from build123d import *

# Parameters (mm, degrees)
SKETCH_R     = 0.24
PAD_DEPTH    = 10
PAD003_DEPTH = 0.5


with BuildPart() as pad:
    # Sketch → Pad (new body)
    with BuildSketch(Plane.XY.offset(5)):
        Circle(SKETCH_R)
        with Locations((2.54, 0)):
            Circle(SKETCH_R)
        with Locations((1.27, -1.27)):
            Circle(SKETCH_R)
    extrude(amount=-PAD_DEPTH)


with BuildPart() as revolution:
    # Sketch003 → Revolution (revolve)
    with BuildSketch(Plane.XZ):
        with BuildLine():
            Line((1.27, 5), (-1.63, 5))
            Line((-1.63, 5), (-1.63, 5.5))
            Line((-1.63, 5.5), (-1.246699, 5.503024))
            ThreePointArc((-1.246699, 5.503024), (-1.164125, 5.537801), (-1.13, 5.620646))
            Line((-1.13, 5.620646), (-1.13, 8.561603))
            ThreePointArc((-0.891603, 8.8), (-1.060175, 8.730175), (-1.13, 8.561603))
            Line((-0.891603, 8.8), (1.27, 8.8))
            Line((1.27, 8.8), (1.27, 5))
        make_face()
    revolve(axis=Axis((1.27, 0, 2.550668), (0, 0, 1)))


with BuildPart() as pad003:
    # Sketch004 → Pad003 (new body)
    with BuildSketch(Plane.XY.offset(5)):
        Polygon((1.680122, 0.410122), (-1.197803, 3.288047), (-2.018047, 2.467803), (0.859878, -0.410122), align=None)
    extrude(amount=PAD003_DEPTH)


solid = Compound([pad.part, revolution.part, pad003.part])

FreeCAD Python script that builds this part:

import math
import FreeCAD as App
import Part
import Sketcher
from FreeCAD import Vector
Q = App.Units.Quantity

doc = App.newDocument("Part")
body = doc.addObject("PartDesign::Body", "Body")
body.AllowCompound = True

sketch1 = doc.addObject("Sketcher::SketchObject", "Sketch")
body.addObject(sketch1)
sketch1.AttachmentSupport = (doc.XY_Plane, [""])
sketch1.MapMode = "FlatFace"
sketch1.AttachmentOffset = App.Placement(Vector(0, 0, 5), App.Rotation())
sketch1.addGeometry(Part.Circle(Vector(0, 0, 0), Vector(0, 0, 1), 0.24), False)
sketch1.addGeometry(Part.Circle(Vector(2.54, 0, 0), Vector(0, 0, 1), 0.24), False)
sketch1.addGeometry(Part.Circle(Vector(1.27, -1.27, 0), Vector(0, 0, 1), 0.24), False)
sketch1.addConstraint(Sketcher.Constraint("Coincident", 0, 3, -1, 1))
sketch1.addConstraint(Sketcher.Constraint("Equal", 0, 1))
sketch1.addConstraint(Sketcher.Constraint("Equal", 1, 2))
sketch1.addConstraint(Sketcher.Constraint("PointOnObject", 1, 3, -1))
sketch1.addConstraint(Sketcher.Constraint("Diameter", 0, 0.48))
sketch1.addConstraint(Sketcher.Constraint("DistanceX", -1, 1, 1, 3, 2.54))
sketch1.addConstraint(Sketcher.Constraint("DistanceX", -1, 1, 2, 3, 1.27))
sketch1.addConstraint(Sketcher.Constraint("DistanceY", 2, 3, -1, 1, 1.27))
pad1 = doc.addObject("PartDesign::Pad", "Pad")
body.addObject(pad1)
pad1.Profile = sketch1
pad1.Length = 10
pad1.Reversed = True
body2 = doc.addObject("PartDesign::Body", "Body001")

sketch2 = doc.addObject("Sketcher::SketchObject", "Sketch001")
body2.addObject(sketch2)
sketch2.AttachmentSupport = (doc.getObject("XZ_Plane001"), [""])
sketch2.MapMode = "FlatFace"
sketch2.addGeometry(Part.LineSegment(Vector(-1.63, 5, 0), Vector(1.27, 5, 0)), False)
sketch2.addGeometry(Part.LineSegment(Vector(1.27, 5, 0), Vector(1.27, 8.8, 0)), False)
sketch2.addGeometry(Part.LineSegment(Vector(1.27, 8.8, 0), Vector(-0.891603, 8.8, 0)), False)
sketch2.addGeometry(Part.ArcOfCircle(Part.Circle(Vector(-0.891603, 8.561603, 0), Vector(0, 0, 1), 0.238397), math.radians(90.000111), math.radians(179.999889)), False)
sketch2.addGeometry(Part.LineSegment(Vector(-1.13, 8.561603, 0), Vector(-1.13, 5.620646, 0)), False)
sketch2.addGeometry(Part.ArcOfCircle(Part.Circle(Vector(-1.247627, 5.620647, 0), Vector(0, 0, 1), 0.117627), math.radians(-89.547913), math.radians(-0.000709)), False)
sketch2.addGeometry(Part.LineSegment(Vector(-1.246699, 5.503024, 0), Vector(-1.63, 5.5, 0)), False)
sketch2.addGeometry(Part.LineSegment(Vector(-1.63, 5.5, 0), Vector(-1.63, 5, 0)), False)
sketch2.addGeometry(Part.LineSegment(Vector(1.27, 5, 0), Vector(1.27, 8.8, 0)), True)
sketch2.addConstraint(Sketcher.Constraint("Coincident", 0, 2, 1, 1))
sketch2.addConstraint(Sketcher.Constraint("Coincident", 1, 2, 2, 1))
sketch2.addConstraint(Sketcher.Constraint("Tangent", 2, 2, 3, 1))
sketch2.addConstraint(Sketcher.Constraint("Tangent", 3, 2, 4, 1))
sketch2.addConstraint(Sketcher.Constraint("Coincident", 4, 2, 5, 2))
sketch2.addConstraint(Sketcher.Constraint("Tangent", 5, 1, 6, 1))
sketch2.addConstraint(Sketcher.Constraint("Coincident", 6, 2, 7, 1))
sketch2.addConstraint(Sketcher.Constraint("Coincident", 7, 2, 0, 1))
sketch2.addConstraint(Sketcher.Constraint("Horizontal", 0))
sketch2.addConstraint(Sketcher.Constraint("Vertical", 1))
sketch2.addConstraint(Sketcher.Constraint("Horizontal", 2))
sketch2.addConstraint(Sketcher.Constraint("Vertical", 4))
sketch2.addConstraint(Sketcher.Constraint("Vertical", 7))
sketch2.addConstraint(Sketcher.Constraint("Vertical", 8))
sketch2.addConstraint(Sketcher.Constraint("Coincident", 8, 1, 0, 2))
sketch2.addConstraint(Sketcher.Constraint("Horizontal", 5, 3, 4, 2))
sketch2.addConstraint(Sketcher.Constraint("Horizontal", 2, 2, 8, 2))
sketch2.addConstraint(Sketcher.Constraint("DistanceX", 0, 1, 0, 2, 2.9))
sketch2.addConstraint(Sketcher.Constraint("DistanceY", 1, 1, 1, 2, 3.8))
sketch2.addConstraint(Sketcher.Constraint("DistanceY", 7, 2, 7, 1, 0.5))
sketch2.addConstraint(Sketcher.Constraint("DistanceY", -1, 1, 0, 2, 5.0))
sketch2.addConstraint(Sketcher.Constraint("DistanceX", 3, 2, 1, 2, 2.4))
sketch2.addConstraint(Sketcher.Constraint("DistanceX", -1, 1, 0, 2, 1.27))
sketch2.addConstraint(Sketcher.Constraint("Radius", 3, 0.238397))
sketch2.addConstraint(Sketcher.Constraint("Radius", 5, 0.117627))
sketch2.addConstraint(Sketcher.Constraint("DistanceX", 5, 1, -1, 1, 1.246699))
revolution = doc.addObject("PartDesign::Revolution", "Revolution")
body2.addObject(revolution)
revolution.Profile = sketch2
revolution.ReferenceAxis = (sketch2, ["Axis0"])
revolution.Angle = 360
body3 = doc.addObject("PartDesign::Body", "Body002")

sketch3 = doc.addObject("Sketcher::SketchObject", "Sketch002")
body3.addObject(sketch3)
sketch3.AttachmentSupport = (doc.getObject("XY_Plane002"), [""])
sketch3.MapMode = "FlatFace"
sketch3.AttachmentOffset = App.Placement(Vector(0, 0, 5), App.Rotation())
sketch3.addGeometry(Part.LineSegment(Vector(1.680122, 0.410122, 0), Vector(-1.197803, 3.288047, 0)), False)
sketch3.addGeometry(Part.LineSegment(Vector(-1.197803, 3.288047, 0), Vector(-2.018047, 2.467803, 0)), False)
sketch3.addGeometry(Part.LineSegment(Vector(-2.018047, 2.467803, 0), Vector(0.859878, -0.410122, 0)), False)
sketch3.addGeometry(Part.LineSegment(Vector(0.859878, -0.410122, 0), Vector(1.680122, 0.410122, 0)), False)
sketch3.addConstraint(Sketcher.Constraint("Coincident", 0, 2, 1, 1))
sketch3.addConstraint(Sketcher.Constraint("Coincident", 1, 2, 2, 1))
sketch3.addConstraint(Sketcher.Constraint("Coincident", 2, 2, 3, 1))
sketch3.addConstraint(Sketcher.Constraint("Coincident", 3, 2, 0, 1))
sketch3.addConstraint(Sketcher.Constraint("Perpendicular", 0, 1))
sketch3.addConstraint(Sketcher.Constraint("Perpendicular", 1, 2))
sketch3.addConstraint(Sketcher.Constraint("Perpendicular", 2, 3))
sketch3.addConstraint(Sketcher.Constraint("Angle", 0, Q("135 deg")))
sketch3.addConstraint(Sketcher.Constraint("Distance", 0, 4.070001))
sketch3.addConstraint(Sketcher.Constraint("Distance", 1, 1.16))
sketch3.addConstraint(Sketcher.Constraint("DistanceX", -1, 1, 2, 2, 0.859878))
sketch3.addConstraint(Sketcher.Constraint("DistanceY", -1, 1, 0, 2, 3.288047))
pad2 = doc.addObject("PartDesign::Pad", "Pad001")
body3.addObject(pad2)
pad2.Profile = sketch3
pad2.Length = 0.5

doc.recompute()
